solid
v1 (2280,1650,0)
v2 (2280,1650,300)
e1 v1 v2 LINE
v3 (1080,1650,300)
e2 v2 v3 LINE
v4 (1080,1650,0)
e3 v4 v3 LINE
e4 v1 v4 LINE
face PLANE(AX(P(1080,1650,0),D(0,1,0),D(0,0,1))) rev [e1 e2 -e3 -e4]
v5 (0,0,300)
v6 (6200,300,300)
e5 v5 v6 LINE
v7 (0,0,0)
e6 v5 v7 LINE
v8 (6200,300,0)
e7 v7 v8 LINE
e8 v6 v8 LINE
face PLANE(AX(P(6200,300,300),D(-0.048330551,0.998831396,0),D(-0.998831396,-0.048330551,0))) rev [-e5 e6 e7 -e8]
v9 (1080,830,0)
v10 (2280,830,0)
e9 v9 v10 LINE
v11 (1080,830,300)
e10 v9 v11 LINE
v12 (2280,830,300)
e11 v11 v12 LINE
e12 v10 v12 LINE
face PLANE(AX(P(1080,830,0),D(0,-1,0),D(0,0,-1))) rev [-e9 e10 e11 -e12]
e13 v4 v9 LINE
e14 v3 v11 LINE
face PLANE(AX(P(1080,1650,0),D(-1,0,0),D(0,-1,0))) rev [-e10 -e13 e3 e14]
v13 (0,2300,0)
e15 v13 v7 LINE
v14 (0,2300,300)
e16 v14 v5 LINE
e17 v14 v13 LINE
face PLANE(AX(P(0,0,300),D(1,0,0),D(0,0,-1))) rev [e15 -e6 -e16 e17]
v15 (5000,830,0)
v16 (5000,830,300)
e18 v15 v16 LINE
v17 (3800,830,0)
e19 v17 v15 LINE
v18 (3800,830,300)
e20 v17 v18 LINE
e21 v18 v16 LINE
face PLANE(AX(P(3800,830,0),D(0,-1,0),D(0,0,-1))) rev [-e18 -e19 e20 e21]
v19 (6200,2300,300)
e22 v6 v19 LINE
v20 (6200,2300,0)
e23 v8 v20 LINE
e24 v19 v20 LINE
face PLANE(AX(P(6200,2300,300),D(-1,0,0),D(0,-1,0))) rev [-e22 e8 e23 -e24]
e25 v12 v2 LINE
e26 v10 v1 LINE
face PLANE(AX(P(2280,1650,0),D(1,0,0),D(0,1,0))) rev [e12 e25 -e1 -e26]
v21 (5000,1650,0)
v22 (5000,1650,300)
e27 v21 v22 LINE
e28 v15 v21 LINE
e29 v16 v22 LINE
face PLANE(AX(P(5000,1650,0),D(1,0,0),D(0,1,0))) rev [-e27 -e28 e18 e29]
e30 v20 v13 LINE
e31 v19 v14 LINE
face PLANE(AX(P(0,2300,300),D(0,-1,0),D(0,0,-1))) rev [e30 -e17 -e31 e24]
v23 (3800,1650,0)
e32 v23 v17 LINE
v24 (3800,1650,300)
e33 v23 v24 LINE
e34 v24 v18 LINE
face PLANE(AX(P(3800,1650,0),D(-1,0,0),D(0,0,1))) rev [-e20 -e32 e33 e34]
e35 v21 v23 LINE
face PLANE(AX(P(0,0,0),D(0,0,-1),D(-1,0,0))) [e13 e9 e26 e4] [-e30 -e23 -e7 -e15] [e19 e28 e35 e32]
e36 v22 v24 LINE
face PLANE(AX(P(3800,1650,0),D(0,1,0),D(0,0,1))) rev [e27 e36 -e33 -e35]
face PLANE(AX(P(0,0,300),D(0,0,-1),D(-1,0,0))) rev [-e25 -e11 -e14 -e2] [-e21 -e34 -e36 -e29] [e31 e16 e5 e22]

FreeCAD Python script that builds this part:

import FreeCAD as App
import Part
import Sketcher

V = App.Vector


def add_polygon(sketch, points):
    """Adds a closed chain of lines whose ends are joined by coincident constraints."""
    first, n = sketch.GeometryCount, len(points)
    for a, b in zip(points, points[1:] + points[:1]):
        sketch.addGeometry(Part.LineSegment(App.Vector(*a, 0), App.Vector(*b, 0)), False)
    for i in range(n):
        sketch.addConstraint(Sketcher.Constraint("Coincident", first + i, 2, first + (i + 1) % n, 1))

doc = App.newDocument("Part")
params = doc.addObject("Spreadsheet::Sheet", "Params")
for row, (alias, value) in enumerate([
    ("sketch1_width", "6200 mm"),
    ("sketch1_height", "2300 mm"),
    ("sketch1_height2", "2000 mm"),
    ("pad1_length", "300 mm"),
    ("sketch2_width", "1200 mm"),
    ("sketch2_height", "820 mm"),
], start=1):
    params.set(f"A{row}", alias)
    params.set(f"B{row}", "=" + value)
    params.setAlias(f"B{row}", alias)

body = doc.addObject("PartDesign::Body", "Body")

sketch1 = doc.addObject("Sketcher::SketchObject", "Sketch")
body.addObject(sketch1)
sketch1.AttachmentSupport = (doc.XY_Plane, [""])
sketch1.MapMode = "FlatFace"
add_polygon(sketch1, [(0, 2300), (0, 0), (6200, 300), (6200, 2300)])
sketch1.addConstraint(Sketcher.Constraint("Vertical", 0))
sketch1.addConstraint(Sketcher.Constraint("Vertical", 2))
sketch1.addConstraint(Sketcher.Constraint("Horizontal", 3))
sketch1.addConstraint(Sketcher.Constraint("Coincident", 0, 2, -1, 1))
sketch1.addConstraint(Sketcher.Constraint("DistanceX", 3, 2, 3, 1, 6200.0))
sketch1.addConstraint(Sketcher.Constraint("DistanceY", 0, 2, 0, 1, 2300.0))
sketch1.addConstraint(Sketcher.Constraint("DistanceY", 2, 1, 2, 2, 2000.0))
sketch1.setExpression("Constraints[8]", "Params.sketch1_width")
sketch1.setExpression("Constraints[9]", "Params.sketch1_height")
sketch1.setExpression("Constraints[10]", "Params.sketch1_height2")
pad1 = doc.addObject("PartDesign::Pad", "Pad")
body.addObject(pad1)
pad1.Profile = sketch1
pad1.setExpression("Length", "Params.pad1_length")

sketch2 = doc.addObject("Sketcher::SketchObject", "Sketch001")
body.addObject(sketch2)
sketch2.AttachmentSupport = (doc.XY_Plane, [""])
sketch2.MapMode = "FlatFace"
sketch2.AttachmentOffset = App.Placement(V(0, 0, 300), App.Rotation())
add_polygon(sketch2, [(1080, 1650), (1080, 830), (2280, 830), (2280, 1650)])
add_polygon(sketch2, [(3800, 1650), (3800, 830), (5000, 830), (5000, 1650)])
sketch2.addConstraint(Sketcher.Constraint("Vertical", 0))
sketch2.addConstraint(Sketcher.Constraint("Horizontal", 1))
sketch2.addConstraint(Sketcher.Constraint("Vertical", 2))
sketch2.addConstraint(Sketcher.Constraint("Horizontal", 3))
sketch2.addConstraint(Sketcher.Constraint("Vertical", 4))
sketch2.addConstraint(Sketcher.Constraint("Horizontal", 5))
sketch2.addConstraint(Sketcher.Constraint("Vertical", 6))
sketch2.addConstraint(Sketcher.Constraint("Horizontal", 7))
sketch2.addConstraint(Sketcher.Constraint("Horizontal", 1, 2, 4, 2))
sketch2.addConstraint(Sketcher.Constraint("Horizontal", 3, 2, 6, 2))
sketch2.addConstraint(Sketcher.Constraint("Equal", 3, 5))
sketch2.addConstraint(Sketcher.Constraint("DistanceX", 1, 1, 1, 2, 1200.0))
sketch2.addConstraint(Sketcher.Constraint("DistanceY", 0, 2, 0, 1, 820.0))
sketch2.addConstraint(Sketcher.Constraint("DistanceX", -1, 1, 0, 2, 1080.0))
sketch2.addConstraint(Sketcher.Constraint("DistanceY", -1, 1, 0, 2, 830.0))
sketch2.addConstraint(Sketcher.Constraint("DistanceX", -1, 1, 4, 2, 3800.0))
sketch2.setExpression("Constraints[19]", "Params.sketch2_width")
sketch2.setExpression("Constraints[20]", "Params.sketch2_height")
pocket1 = doc.addObject("PartDesign::Pocket", "Pocket")
body.addObject(pocket1)
pocket1.Profile = sketch2
pocket1.Type = "ThroughAll"

doc.recompute()
